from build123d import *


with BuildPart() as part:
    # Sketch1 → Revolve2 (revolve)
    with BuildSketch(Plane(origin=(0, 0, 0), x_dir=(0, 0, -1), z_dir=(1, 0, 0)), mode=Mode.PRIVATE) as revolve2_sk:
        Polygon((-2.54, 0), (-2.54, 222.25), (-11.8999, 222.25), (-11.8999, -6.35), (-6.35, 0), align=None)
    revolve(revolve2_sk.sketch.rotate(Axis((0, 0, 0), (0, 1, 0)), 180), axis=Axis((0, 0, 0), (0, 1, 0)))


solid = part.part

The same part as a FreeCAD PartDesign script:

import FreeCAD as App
import Part
import Sketcher
from FreeCAD import Vector
Q = App.Units.Quantity


def add_polygon(sketch, points):
    """Adds a closed chain of lines whose ends are joined by coincident constraints."""
    first, n = sketch.GeometryCount, len(points)
    for a, b in zip(points, points[1:] + points[:1]):
        sketch.addGeometry(Part.LineSegment(App.Vector(*a, 0), App.Vector(*b, 0)), False)
    for i in range(n):
        sketch.addConstraint(Sketcher.Constraint("Coincident", first + i, 2, first + (i + 1) % n, 1))

doc = App.newDocument("Part")
params = doc.addObject("Spreadsheet::Sheet", "Params")
for row, (alias, value) in enumerate([
    ("sketch1_width", "9 in"),
    ("sketch1_width2", "8.75 in"),
    ("sketch1_height", "0.15 in"),
    ("revolution_angle", "360 deg"),
], start=1):
    params.set(f"A{row}", alias)
    params.set(f"B{row}", "=" + value)
    params.setAlias(f"B{row}", alias)

body = doc.addObject("PartDesign::Body", "Body")

sketch1 = body.newObject("Sketcher::SketchObject", "Sketch")
sketch1.AttachmentSupport = (doc.getObject("YZ_Plane"), [""])
sketch1.MapMode = "FlatFace"
add_polygon(sketch1, [(0, 2.54), (222.25, 2.54), (222.25, 11.8999), (-6.35, 11.8999), (0, 6.35)])
sketch1.addConstraint([
    Sketcher.Constraint("Horizontal", 0),
    Sketcher.Constraint("Vertical", 1),
    Sketcher.Constraint("Horizontal", 2),
    Sketcher.Constraint("Vertical", 4),
    Sketcher.Constraint("PointOnObject", 3, 2, -2),
    Sketcher.Constraint("DistanceX", 2, 2, 2, 1, Q("9 in")),
    Sketcher.Constraint("DistanceX", 0, 1, 0, 2, Q("8.75 in")),
    Sketcher.Constraint("DistanceY", 4, 2, 4, 1, Q("0.15 in")),
    Sketcher.Constraint("DistanceY", -1, 1, 0, 2, Q("0.1 in")),
    Sketcher.Constraint("DistanceY", 1, 1, 1, 2, Q("0.3685 in")),
])
sketch1.setExpression("Constraints[10]", "Params.sketch1_width")
sketch1.setExpression("Constraints[11]", "Params.sketch1_width2")
sketch1.setExpression("Constraints[12]", "Params.sketch1_height")
revolution = body.newObject("PartDesign::Revolution", "Revolution")
revolution.Profile = sketch1
revolution.ReferenceAxis = (sketch1, ["H_Axis"])
revolution.setExpression("Angle", "Params.revolution_angle")

doc.recompute()
